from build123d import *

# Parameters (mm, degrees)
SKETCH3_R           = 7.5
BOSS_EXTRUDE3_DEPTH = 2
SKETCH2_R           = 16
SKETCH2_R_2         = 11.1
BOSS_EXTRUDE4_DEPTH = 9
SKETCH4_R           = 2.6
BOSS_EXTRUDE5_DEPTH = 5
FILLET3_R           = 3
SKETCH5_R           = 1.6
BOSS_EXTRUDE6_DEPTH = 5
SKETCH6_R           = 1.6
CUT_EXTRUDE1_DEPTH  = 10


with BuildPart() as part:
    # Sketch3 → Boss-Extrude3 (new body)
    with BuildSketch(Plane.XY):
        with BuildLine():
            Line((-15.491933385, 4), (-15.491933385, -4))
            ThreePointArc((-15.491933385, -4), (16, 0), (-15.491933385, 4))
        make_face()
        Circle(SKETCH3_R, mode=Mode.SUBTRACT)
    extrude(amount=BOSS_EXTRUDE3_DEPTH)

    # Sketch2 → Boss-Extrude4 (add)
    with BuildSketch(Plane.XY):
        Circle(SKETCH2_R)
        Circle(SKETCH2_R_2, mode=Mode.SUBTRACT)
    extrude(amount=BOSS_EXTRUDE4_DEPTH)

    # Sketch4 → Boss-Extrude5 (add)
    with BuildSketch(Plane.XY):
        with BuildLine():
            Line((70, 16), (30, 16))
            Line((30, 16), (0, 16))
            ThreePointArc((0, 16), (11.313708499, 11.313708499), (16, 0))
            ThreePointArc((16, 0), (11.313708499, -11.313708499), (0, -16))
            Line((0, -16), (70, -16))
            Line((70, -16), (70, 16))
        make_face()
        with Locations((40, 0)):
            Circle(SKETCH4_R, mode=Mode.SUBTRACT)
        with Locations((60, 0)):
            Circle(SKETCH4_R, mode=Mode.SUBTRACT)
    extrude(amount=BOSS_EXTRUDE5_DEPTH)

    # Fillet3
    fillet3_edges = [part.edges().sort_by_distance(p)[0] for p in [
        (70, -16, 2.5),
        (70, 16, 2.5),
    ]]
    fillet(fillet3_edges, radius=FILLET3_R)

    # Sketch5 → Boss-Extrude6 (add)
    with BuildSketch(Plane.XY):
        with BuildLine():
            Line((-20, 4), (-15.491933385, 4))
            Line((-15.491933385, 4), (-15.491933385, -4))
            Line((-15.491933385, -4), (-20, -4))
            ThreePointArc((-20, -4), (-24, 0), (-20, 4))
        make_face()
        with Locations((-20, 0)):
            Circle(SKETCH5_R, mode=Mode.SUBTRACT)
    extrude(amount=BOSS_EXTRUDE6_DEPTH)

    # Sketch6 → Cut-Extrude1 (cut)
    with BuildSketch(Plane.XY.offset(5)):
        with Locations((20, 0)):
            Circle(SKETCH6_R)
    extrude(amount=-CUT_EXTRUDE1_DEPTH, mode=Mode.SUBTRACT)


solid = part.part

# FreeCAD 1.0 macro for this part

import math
import FreeCAD as App
import Part
import Sketcher
Q = App.Units.Quantity


def edges_at(feature, points):
    """Names of the edges that pass closest to the given points."""
    edges = feature.Shape.Edges
    near = lambda p: min(range(len(edges)), key=lambda i: edges[i].distToShape(Part.Vertex(*p))[0])
    return sorted({f"Edge{near(p) + 1}" for p in points})

doc = App.newDocument("Part")
params = doc.addObject("Spreadsheet::Sheet", "Params")
for row, (alias, value) in enumerate([
    ("sketch1_diameter", "15 mm"),
    ("sketch1_radius", "16 mm"),
    ("sketch1_height", "8 mm"),
    ("pad1_length", "2 mm"),
    ("sketch2_diameter", "32 mm"),
    ("sketch2_diameter2", "22.2 mm"),
    ("pad2_length", "9 mm"),
    ("sketch3_radius", "16 mm"),
    ("sketch3_diameter", "5.2 mm"),
    ("sketch3_width", "70 mm"),
    ("pad3_length", "5 mm"),
    ("fillet_radius", "3 mm"),
    ("sketch4_radius", "4 mm"),
    ("sketch4_diameter", "3.2 mm"),
    ("pad4_length", "5 mm"),
    ("sketch5_diameter", "3.2 mm"),
    ("pocket1_length", "10 mm"),
], start=1):
    params.set(f"A{row}", alias)
    params.set(f"B{row}", "=" + value)
    params.setAlias(f"B{row}", alias)

body = doc.addObject("PartDesign::Body", "Body")

# Sketch on XY plane
sketch1 = body.newObject("Sketcher::SketchObject", "Sketch")
sketch1.AttachmentSupport = (doc.getObject("XY_Plane"), [""])
sketch1.MapMode = "FlatFace"
sketch1.addGeometry([
    Part.LineSegment(App.Vector(-15, 4, 0), App.Vector(-15, -4, 0)),
    Part.ArcOfCircle(Part.Circle(App.Vector(0, 0, 0), App.Vector(0, 0, 1), 16), math.radians(-166), math.radians(166)),
    Part.Circle(App.Vector(0, 0, 0), App.Vector(0, 0, 1), 8),
], False)
sketch1.addConstraint([
    Sketcher.Constraint("Coincident", 0, 1, 1, 2),
    Sketcher.Constraint("Coincident", 1, 1, 0, 2),
    Sketcher.Constraint("Vertical", 0),
    Sketcher.Constraint("Coincident", 1, 3, -1, 1),
    Sketcher.Constraint("Coincident", 2, 3, -1, 1),
    Sketcher.Constraint("Diameter", 2, Q("15 mm")),
    Sketcher.Constraint("Radius", 1, Q("16 mm")),
    Sketcher.Constraint("DistanceY", 0, 2, 0, 1, Q("8 mm")),
])
sketch1.setExpression("Constraints[5]", "Params.sketch1_diameter")
sketch1.setExpression("Constraints[6]", "Params.sketch1_radius")
sketch1.setExpression("Constraints[7]", "Params.sketch1_height")
pad1 = body.newObject("PartDesign::Pad", "Pad")
pad1.Profile = sketch1
pad1.setExpression("Length", "Params.pad1_length")

# Sketch on XY plane
sketch2 = body.newObject("Sketcher::SketchObject", "Sketch001")
sketch2.AttachmentSupport = (doc.getObject("XY_Plane"), [""])
sketch2.MapMode = "FlatFace"
sketch2.addGeometry([
    Part.Circle(App.Vector(0, 0, 0), App.Vector(0, 0, 1), 16),
    Part.Circle(App.Vector(0, 0, 0), App.Vector(0, 0, 1), 11),
], False)
sketch2.addConstraint([
    Sketcher.Constraint("Coincident", 0, 3, -1, 1),
    Sketcher.Constraint("Coincident", 1, 3, -1, 1),
    Sketcher.Constraint("Diameter", 0, Q("32 mm")),
    Sketcher.Constraint("Diameter", 1, Q("22.2 mm")),
])
sketch2.setExpression("Constraints[2]", "Params.sketch2_diameter")
sketch2.setExpression("Constraints[3]", "Params.sketch2_diameter2")
pad2 = body.newObject("PartDesign::Pad", "Pad001")
pad2.Profile = sketch2
pad2.setExpression("Length", "Params.pad2_length")

# Sketch on XY plane
sketch3 = body.newObject("Sketcher::SketchObject", "Sketch002")
sketch3.AttachmentSupport = (doc.getObject("XY_Plane"), [""])
sketch3.MapMode = "FlatFace"
sketch3.addGeometry([
    Part.LineSegment(App.Vector(70, 16, 0), App.Vector(0, 16, 0)),  # 0
    Part.ArcOfCircle(Part.Circle(App.Vector(0, 0, 0), App.Vector(0, 0, 1), 16), math.radians(0), math.radians(90)),  # 1
    Part.ArcOfCircle(Part.Circle(App.Vector(0, 0, 0), App.Vector(0, 0, 1), 16), math.radians(-90), math.radians(0)),  # 2
    Part.LineSegment(App.Vector(0, -16, 0), App.Vector(70, -16, 0)),  # 3
    Part.LineSegment(App.Vector(70, -16, 0), App.Vector(70, 16, 0)),  # 4
    Part.Circle(App.Vector(40, 0, 0), App.Vector(0, 0, 1), 2.6),  # 5
    Part.Circle(App.Vector(60, 0, 0), App.Vector(0, 0, 1), 2.6),  # 6
], False)
sketch3.addConstraint([
    Sketcher.Constraint("Tangent", 0, 2, 1, 2),
    Sketcher.Constraint("Tangent", 1, 1, 2, 2),
    Sketcher.Constraint("Tangent", 2, 1, 3, 1),
    Sketcher.Constraint("Coincident", 3, 2, 4, 1),
    Sketcher.Constraint("Coincident", 4, 2, 0, 1),
    Sketcher.Constraint("Horizontal", 0),
    Sketcher.Constraint("Horizontal", 3),
    Sketcher.Constraint("Vertical", 4),
    Sketcher.Constraint("Coincident", 1, 3, -1, 1),
    Sketcher.Constraint("Equal", 1, 2),
    Sketcher.Constraint("Equal", 5, 6),
    Sketcher.Constraint("PointOnObject", 5, 3, -1),
    Sketcher.Constraint("PointOnObject", 6, 3, -1),
    Sketcher.Constraint("PointOnObject", 1, 1, -1),
    Sketcher.Constraint("Radius", 1, Q("16 mm")),
    Sketcher.Constraint("Diameter", 5, Q("5.2 mm")),
    Sketcher.Constraint("DistanceX", 0, 2, 0, 1, Q("70 mm")),
    Sketcher.Constraint("DistanceX", -1, 1, 5, 3, Q("40 mm")),
    Sketcher.Constraint("DistanceX", -1, 1, 6, 3, Q("60 mm")),
])
sketch3.setExpression("Constraints[14]", "Params.sketch3_radius")
sketch3.setExpression("Constraints[15]", "Params.sketch3_diameter")
sketch3.setExpression("Constraints[16]", "Params.sketch3_width")
pad3 = body.newObject("PartDesign::Pad", "Pad002")
pad3.Profile = sketch3
pad3.setExpression("Length", "Params.pad3_length")
doc.recompute()

fillet = body.newObject("PartDesign::Fillet", "Fillet")
fillet.Base = (pad3, edges_at(pad3, [(70, -16, 2.5), (70, 16, 2.5)]))
fillet.setExpression("Radius", "Params.fillet_radius")

# Sketch on XY plane
sketch4 = body.newObject("Sketcher::SketchObject", "Sketch003")
sketch4.AttachmentSupport = (doc.getObject("XY_Plane"), [""])
sketch4.MapMode = "FlatFace"
sketch4.addGeometry([
    Part.LineSegment(App.Vector(-15.5, 4, 0), App.Vector(-20, 4, 0)),  # 0
    Part.ArcOfCircle(Part.Circle(App.Vector(-20, 0, 0), App.Vector(0, 0, 1), 4), math.radians(90), math.radians(270)),  # 1
    Part.LineSegment(App.Vector(-20, -4, 0), App.Vector(-15.5, -4, 0)),  # 2
    Part.LineSegment(App.Vector(-15.5, -4, 0), App.Vector(-15.5, 4, 0)),  # 3
    Part.Circle(App.Vector(-20, 0, 0), App.Vector(0, 0, 1), 1.6),  # 4
], False)
sketch4.addConstraint([
    Sketcher.Constraint("Tangent", 0, 2, 1, 1),
    Sketcher.Constraint("Tangent", 1, 2, 2, 1),
    Sketcher.Constraint("Coincident", 2, 2, 3, 1),
    Sketcher.Constraint("Coincident", 3, 2, 0, 1),
    Sketcher.Constraint("Horizontal", 0),
    Sketcher.Constraint("Horizontal", 2),
    Sketcher.Constraint("Vertical", 3),
    Sketcher.Constraint("Coincident", 4, 3, 1, 3),
    Sketcher.Constraint("PointOnObject", 1, 3, -1),
    Sketcher.Constraint("Radius", 1, Q("4 mm")),
    Sketcher.Constraint("Diameter", 4, Q("3.2 mm")),
    Sketcher.Constraint("DistanceX", 1, 3, -1, 1, Q("20 mm")),
    Sketcher.Constraint("DistanceX", 0, 2, 0, 1, Q("4.508067 mm")),
])
sketch4.setExpression("Constraints[9]", "Params.sketch4_radius")
sketch4.setExpression("Constraints[10]", "Params.sketch4_diameter")
pad4 = body.newObject("PartDesign::Pad", "Pad003")
pad4.Profile = sketch4
pad4.setExpression("Length", "Params.pad4_length")

# Sketch on XY plane
sketch5 = body.newObject("Sketcher::SketchObject", "Sketch004")
sketch5.AttachmentSupport = (doc.getObject("XY_Plane"), [""])
sketch5.MapMode = "FlatFace"
sketch5.AttachmentOffset = App.Placement(App.Vector(0, 0, 5), App.Rotation())
sketch5.addGeometry(Part.Circle(App.Vector(20, 0, 0), App.Vector(0, 0, 1), 1.6), False)
sketch5.addConstraint([
    Sketcher.Constraint("PointOnObject", 0, 3, -1),
    Sketcher.Constraint("Diameter", 0, Q("3.2 mm")),
    Sketcher.Constraint("DistanceX", -1, 1, 0, 3, Q("20 mm")),
])
sketch5.setExpression("Constraints[1]", "Params.sketch5_diameter")
pocket1 = body.newObject("PartDesign::Pocket", "Pocket")
pocket1.Profile = sketch5
pocket1.setExpression("Length", "Params.pocket1_length")

doc.recompute()
